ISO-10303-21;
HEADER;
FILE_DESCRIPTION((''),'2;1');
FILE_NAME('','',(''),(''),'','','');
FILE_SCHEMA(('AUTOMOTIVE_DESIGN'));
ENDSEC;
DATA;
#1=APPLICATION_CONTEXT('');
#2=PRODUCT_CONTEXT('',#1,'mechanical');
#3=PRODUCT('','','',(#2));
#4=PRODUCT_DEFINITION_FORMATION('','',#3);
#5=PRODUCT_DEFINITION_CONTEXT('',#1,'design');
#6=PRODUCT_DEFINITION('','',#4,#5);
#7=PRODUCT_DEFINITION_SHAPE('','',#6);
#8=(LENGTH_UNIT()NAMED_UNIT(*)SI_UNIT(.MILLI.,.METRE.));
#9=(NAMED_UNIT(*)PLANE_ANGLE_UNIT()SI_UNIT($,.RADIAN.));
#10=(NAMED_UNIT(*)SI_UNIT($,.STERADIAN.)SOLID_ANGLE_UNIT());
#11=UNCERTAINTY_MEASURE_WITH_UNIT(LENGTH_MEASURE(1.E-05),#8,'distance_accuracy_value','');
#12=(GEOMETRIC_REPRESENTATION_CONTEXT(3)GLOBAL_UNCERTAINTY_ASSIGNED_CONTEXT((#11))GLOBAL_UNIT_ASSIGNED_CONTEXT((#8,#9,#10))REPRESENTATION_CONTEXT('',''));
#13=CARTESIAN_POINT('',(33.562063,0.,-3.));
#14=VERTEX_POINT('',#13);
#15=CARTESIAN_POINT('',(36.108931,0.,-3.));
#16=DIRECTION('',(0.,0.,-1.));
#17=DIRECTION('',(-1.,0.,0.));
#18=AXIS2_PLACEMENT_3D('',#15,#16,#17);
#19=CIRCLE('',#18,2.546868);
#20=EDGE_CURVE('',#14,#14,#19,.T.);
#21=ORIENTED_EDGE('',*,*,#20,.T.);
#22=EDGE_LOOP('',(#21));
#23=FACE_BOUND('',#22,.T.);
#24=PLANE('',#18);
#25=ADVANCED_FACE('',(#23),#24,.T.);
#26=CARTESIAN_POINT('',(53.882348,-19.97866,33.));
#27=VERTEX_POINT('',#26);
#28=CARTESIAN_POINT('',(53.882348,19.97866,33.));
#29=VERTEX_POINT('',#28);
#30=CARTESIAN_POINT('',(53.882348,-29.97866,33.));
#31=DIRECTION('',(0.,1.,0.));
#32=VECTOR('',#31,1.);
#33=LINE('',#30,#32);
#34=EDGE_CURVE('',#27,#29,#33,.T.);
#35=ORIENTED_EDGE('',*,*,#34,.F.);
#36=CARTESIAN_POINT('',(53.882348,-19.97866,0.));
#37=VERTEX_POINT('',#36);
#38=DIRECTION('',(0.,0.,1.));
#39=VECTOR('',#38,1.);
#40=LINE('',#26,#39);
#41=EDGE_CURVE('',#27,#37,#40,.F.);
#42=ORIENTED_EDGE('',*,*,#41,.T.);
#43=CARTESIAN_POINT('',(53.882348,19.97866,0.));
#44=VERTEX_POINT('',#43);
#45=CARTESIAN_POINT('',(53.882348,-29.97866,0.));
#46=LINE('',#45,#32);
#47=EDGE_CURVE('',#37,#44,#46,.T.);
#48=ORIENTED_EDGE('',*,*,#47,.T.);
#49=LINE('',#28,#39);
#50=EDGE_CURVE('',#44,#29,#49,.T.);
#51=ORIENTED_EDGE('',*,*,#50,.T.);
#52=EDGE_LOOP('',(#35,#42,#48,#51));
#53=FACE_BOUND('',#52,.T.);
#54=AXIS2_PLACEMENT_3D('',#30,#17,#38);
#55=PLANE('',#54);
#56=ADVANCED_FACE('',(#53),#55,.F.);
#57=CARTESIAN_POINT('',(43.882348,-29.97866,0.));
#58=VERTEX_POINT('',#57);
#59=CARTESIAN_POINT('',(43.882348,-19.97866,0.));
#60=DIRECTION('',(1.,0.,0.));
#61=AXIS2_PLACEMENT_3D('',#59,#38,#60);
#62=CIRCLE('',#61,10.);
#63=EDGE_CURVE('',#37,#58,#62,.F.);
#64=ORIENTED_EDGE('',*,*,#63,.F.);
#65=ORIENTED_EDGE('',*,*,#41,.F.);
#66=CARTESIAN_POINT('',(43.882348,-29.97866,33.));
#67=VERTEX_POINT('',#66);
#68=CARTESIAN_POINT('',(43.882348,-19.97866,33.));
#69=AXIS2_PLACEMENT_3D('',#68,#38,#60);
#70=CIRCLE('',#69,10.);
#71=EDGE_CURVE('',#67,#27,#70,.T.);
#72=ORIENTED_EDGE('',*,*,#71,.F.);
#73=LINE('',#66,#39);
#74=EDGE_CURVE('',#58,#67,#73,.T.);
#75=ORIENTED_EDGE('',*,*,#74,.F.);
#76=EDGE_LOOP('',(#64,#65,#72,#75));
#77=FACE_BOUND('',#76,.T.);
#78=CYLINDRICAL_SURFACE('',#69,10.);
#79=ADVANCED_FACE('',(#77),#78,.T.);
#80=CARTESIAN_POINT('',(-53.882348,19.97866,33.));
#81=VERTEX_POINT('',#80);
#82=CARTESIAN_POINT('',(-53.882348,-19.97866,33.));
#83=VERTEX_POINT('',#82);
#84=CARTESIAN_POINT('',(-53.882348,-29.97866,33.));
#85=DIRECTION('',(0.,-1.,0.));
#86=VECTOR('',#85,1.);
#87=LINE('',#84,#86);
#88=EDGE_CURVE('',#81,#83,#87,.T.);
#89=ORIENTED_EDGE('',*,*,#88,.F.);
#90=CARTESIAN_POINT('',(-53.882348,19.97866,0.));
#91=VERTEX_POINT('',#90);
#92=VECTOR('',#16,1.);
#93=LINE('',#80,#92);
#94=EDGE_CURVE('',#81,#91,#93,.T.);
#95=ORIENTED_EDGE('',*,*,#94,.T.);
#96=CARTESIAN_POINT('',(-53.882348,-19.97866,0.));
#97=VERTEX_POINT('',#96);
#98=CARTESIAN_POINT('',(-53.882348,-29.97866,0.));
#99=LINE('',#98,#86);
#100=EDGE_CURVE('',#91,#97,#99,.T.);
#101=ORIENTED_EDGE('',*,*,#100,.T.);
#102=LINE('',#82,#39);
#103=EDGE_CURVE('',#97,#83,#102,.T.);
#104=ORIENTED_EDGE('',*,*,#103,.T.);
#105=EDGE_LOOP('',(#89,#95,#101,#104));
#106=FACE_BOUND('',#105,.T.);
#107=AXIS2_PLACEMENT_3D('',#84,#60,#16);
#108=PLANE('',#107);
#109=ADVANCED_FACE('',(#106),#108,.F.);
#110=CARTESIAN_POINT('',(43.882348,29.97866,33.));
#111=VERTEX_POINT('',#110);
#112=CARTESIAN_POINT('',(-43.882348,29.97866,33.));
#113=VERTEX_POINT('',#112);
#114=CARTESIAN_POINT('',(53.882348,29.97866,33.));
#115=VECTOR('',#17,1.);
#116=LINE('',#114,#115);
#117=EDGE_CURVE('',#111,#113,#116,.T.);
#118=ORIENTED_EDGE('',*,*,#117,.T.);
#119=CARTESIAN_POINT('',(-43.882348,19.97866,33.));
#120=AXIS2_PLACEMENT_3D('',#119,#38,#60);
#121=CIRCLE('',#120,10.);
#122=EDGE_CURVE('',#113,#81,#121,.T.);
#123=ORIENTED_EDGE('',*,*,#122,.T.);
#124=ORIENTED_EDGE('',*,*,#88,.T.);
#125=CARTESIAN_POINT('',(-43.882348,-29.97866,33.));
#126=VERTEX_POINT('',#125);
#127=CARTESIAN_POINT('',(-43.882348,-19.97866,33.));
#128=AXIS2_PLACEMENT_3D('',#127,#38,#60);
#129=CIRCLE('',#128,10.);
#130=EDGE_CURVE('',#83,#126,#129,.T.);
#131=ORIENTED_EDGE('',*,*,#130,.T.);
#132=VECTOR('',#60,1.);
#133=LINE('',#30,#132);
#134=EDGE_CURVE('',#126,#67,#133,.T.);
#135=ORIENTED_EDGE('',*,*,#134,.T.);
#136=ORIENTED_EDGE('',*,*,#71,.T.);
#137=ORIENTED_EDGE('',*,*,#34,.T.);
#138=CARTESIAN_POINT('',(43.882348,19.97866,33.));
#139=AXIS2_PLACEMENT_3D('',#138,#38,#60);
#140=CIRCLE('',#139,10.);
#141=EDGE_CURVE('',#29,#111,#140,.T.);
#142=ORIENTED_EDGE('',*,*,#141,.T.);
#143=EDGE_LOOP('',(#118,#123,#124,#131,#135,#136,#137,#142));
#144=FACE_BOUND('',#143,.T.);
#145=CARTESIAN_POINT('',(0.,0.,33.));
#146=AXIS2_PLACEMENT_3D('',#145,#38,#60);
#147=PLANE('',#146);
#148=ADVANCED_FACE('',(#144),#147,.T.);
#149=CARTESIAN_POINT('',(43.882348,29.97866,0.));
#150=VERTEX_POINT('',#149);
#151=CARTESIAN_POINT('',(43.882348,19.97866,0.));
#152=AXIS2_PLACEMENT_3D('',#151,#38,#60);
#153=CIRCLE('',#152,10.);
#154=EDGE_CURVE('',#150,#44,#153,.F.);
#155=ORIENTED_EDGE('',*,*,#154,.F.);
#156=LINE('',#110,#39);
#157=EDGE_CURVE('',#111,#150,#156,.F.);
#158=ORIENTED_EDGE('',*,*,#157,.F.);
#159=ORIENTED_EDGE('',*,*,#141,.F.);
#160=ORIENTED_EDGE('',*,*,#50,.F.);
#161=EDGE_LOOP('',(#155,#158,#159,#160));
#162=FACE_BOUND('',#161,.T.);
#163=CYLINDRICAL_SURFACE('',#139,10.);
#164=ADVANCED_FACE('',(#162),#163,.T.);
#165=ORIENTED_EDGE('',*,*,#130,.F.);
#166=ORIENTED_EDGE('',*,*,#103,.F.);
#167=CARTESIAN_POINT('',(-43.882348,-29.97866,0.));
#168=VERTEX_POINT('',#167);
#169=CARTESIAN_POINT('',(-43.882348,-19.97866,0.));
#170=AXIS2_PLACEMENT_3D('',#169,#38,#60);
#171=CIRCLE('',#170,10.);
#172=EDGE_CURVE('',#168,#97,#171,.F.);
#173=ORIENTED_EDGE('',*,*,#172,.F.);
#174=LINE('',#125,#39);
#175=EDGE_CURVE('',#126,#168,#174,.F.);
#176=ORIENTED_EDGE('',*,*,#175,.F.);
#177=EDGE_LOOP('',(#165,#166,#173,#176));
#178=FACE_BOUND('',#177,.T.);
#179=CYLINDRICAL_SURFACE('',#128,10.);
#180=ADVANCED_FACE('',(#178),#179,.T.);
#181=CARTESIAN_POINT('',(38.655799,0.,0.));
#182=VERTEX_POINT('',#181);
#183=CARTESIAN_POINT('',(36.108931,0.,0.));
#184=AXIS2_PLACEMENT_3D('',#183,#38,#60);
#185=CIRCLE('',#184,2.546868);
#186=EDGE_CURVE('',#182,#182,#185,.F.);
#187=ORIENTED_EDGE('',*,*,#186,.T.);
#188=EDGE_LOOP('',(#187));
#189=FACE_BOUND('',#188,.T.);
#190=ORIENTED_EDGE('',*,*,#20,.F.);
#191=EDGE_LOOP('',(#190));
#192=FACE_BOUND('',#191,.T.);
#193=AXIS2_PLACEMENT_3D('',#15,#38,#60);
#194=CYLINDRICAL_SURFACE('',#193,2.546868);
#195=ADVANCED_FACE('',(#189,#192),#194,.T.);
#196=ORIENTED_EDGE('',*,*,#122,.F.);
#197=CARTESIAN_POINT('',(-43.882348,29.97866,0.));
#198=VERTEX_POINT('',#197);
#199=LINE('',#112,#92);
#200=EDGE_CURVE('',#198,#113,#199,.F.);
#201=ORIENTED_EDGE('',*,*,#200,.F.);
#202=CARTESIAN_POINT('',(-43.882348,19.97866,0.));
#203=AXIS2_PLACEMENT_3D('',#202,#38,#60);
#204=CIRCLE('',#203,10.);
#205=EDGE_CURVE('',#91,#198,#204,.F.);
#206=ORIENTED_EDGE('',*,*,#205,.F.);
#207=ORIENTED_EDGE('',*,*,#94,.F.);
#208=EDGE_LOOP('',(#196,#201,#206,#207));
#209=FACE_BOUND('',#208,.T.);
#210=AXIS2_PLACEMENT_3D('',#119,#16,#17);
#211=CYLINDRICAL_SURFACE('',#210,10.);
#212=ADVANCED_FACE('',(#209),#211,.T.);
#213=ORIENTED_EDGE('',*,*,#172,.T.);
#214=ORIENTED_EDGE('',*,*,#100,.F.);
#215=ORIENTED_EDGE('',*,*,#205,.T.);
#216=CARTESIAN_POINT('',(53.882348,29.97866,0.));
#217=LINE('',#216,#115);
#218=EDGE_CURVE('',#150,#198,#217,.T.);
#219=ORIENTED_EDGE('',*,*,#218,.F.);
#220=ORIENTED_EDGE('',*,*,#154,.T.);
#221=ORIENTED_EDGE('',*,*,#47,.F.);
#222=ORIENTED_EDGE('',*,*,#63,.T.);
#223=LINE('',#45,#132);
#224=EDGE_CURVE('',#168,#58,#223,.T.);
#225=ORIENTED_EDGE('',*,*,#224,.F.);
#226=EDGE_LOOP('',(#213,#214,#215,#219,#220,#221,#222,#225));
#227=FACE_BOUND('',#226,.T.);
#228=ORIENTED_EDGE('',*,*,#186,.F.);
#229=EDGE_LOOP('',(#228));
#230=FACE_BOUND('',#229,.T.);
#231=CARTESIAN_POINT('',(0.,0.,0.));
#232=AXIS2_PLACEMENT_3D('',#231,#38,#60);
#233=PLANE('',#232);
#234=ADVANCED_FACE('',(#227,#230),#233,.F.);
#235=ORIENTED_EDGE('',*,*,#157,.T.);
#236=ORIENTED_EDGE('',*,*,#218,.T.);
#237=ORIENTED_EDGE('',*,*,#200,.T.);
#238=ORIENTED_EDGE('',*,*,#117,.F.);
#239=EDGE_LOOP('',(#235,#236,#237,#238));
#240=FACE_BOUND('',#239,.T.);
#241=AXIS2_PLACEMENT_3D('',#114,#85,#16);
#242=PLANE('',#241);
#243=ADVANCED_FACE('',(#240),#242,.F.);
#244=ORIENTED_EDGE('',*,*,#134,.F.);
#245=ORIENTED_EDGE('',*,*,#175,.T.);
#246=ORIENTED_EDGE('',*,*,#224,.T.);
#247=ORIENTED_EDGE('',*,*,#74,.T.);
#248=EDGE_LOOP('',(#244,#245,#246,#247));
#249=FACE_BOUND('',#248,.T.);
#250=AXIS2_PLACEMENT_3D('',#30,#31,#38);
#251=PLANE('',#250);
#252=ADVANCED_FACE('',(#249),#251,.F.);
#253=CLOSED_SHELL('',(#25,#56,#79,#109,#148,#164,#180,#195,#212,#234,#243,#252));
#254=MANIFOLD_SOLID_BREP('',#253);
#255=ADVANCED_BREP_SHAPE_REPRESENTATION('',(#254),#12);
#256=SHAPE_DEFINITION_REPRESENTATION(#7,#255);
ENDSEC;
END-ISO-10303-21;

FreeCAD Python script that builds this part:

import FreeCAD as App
import Part
import Sketcher
from FreeCAD import Vector
Q = App.Units.Quantity


def edges_at(feature, points):
    """Names of the edges that pass closest to the given points."""
    edges = feature.Shape.Edges
    near = lambda p: min(range(len(edges)), key=lambda i: edges[i].distToShape(Part.Vertex(*p))[0])
    return sorted({f"Edge{near(p) + 1}" for p in points})


def add_polygon(sketch, points):
    """Adds a closed chain of lines whose ends are joined by coincident constraints."""
    first, n = sketch.GeometryCount, len(points)
    for a, b in zip(points, points[1:] + points[:1]):
        sketch.addGeometry(Part.LineSegment(App.Vector(*a, 0), App.Vector(*b, 0)), False)
    for i in range(n):
        sketch.addConstraint(Sketcher.Constraint("Coincident", first + i, 2, first + (i + 1) % n, 1))

doc = App.newDocument("Part")
body = doc.addObject("PartDesign::Body", "Body")

# Sketch on XY plane
sketch1 = doc.addObject("Sketcher::SketchObject", "Sketch")
body.addObject(sketch1)
sketch1.AttachmentSupport = (doc.XY_Plane, [""])
sketch1.MapMode = "FlatFace"
add_polygon(sketch1, [(-54, 30), (-54, -30), (54, -30), (54, 30)])  # lines 0-3
sketch1.addConstraint([
    Sketcher.Constraint("Vertical", 0),
    Sketcher.Constraint("Horizontal", 1),
    Sketcher.Constraint("Vertical", 2),
    Sketcher.Constraint("Horizontal", 3),
    Sketcher.Constraint("Symmetric", 0, 2, 2, 2, -1, 1),
    Sketcher.Constraint("DistanceY", 0, 2, 0, 1, Q("59.957319 mm")),
    Sketcher.Constraint("DistanceX", 1, 1, 1, 2, Q("107.764697 mm")),
])
pad1 = doc.addObject("PartDesign::Pad", "Pad")
body.addObject(pad1)
pad1.Profile = sketch1
pad1.Length = 33
doc.recompute()

fillet = doc.addObject("PartDesign::Fillet", "Fillet")
body.addObject(fillet)
fillet.Base = (pad1, edges_at(pad1, [(53.882, 29.979, 16.5)]))
fillet.Radius = 10
doc.recompute()

fillet2 = doc.addObject("PartDesign::Fillet", "Fillet001")
body.addObject(fillet2)
fillet2.Base = (fillet, edges_at(fillet, [(53.882, -29.979, 16.5)]))
fillet2.Radius = 10
doc.recompute()

fillet3 = doc.addObject("PartDesign::Fillet", "Fillet002")
body.addObject(fillet3)
fillet3.Base = (fillet2, edges_at(fillet2, [(-53.882, 29.979, 16.5)]))
fillet3.Radius = 10
doc.recompute()

fillet4 = doc.addObject("PartDesign::Fillet", "Fillet003")
body.addObject(fillet4)
fillet4.Base = (fillet3, edges_at(fillet3, [(-53.882, -29.979, 16.5)]))
fillet4.Radius = 10

# Sketch on XY plane
sketch2 = doc.addObject("Sketcher::SketchObject", "Sketch001")
body.addObject(sketch2)
sketch2.AttachmentSupport = (doc.XY_Plane, [""])
sketch2.MapMode = "FlatFace"
sketch2.addGeometry(Part.Circle(Vector(36.1, 0, 0), Vector(0, 0, 1), 2.5), False)
sketch2.addConstraint([
    Sketcher.Constraint("PointOnObject", 0, 3, -1),
    Sketcher.Constraint("Diameter", 0, Q("5.093736 mm")),
    Sketcher.Constraint("DistanceX", -1, 1, 0, 3, Q("36.108931 mm")),
])
pad2 = doc.addObject("PartDesign::Pad", "Pad001")
body.addObject(pad2)
pad2.Profile = sketch2
pad2.Length = 3
pad2.Reversed = True

doc.recompute()
